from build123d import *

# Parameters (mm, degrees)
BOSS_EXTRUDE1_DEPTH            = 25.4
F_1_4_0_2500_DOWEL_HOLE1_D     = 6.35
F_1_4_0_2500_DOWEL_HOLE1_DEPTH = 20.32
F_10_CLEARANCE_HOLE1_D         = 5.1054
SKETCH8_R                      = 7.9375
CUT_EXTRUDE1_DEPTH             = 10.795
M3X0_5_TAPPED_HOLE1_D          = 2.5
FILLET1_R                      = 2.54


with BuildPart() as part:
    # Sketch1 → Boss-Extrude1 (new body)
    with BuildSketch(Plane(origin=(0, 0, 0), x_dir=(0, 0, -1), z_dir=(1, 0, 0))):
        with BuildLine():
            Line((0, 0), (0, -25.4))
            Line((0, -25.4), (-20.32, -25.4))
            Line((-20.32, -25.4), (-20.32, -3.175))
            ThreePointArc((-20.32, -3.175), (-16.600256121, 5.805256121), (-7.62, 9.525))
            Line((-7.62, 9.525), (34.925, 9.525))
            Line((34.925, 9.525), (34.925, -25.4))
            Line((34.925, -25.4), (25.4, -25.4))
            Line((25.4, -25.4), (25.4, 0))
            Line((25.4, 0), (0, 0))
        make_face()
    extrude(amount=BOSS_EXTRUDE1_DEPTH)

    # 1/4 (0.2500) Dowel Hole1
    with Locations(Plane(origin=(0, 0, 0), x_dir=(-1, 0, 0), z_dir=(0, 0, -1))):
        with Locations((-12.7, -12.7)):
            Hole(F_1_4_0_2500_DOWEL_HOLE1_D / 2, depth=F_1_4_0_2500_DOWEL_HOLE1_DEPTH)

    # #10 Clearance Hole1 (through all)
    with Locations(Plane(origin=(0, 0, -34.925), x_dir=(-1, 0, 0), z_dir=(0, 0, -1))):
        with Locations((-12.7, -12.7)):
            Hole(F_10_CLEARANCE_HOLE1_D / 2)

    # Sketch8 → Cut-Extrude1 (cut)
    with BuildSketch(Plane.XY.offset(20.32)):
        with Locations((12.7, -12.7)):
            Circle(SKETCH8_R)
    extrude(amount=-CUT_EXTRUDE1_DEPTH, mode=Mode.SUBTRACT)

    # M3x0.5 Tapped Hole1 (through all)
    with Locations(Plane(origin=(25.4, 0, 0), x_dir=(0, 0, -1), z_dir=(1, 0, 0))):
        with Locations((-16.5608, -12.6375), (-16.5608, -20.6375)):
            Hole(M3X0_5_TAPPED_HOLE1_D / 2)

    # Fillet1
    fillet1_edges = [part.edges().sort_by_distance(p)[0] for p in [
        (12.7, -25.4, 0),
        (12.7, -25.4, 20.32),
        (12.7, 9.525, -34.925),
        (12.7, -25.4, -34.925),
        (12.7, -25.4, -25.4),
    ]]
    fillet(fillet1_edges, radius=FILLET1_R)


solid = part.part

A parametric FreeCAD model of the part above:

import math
import FreeCAD as App
import Part
import Sketcher
from FreeCAD import Vector
Q = App.Units.Quantity


def edges_at(feature, points):
    """Names of the edges that pass closest to the given points."""
    edges = feature.Shape.Edges
    near = lambda p: min(range(len(edges)), key=lambda i: edges[i].distToShape(Part.Vertex(*p))[0])
    return sorted({f"Edge{near(p) + 1}" for p in points})

doc = App.newDocument("Part")
body = doc.addObject("PartDesign::Body", "Body")

# Sketch on YZ plane
sketch1 = body.newObject("Sketcher::SketchObject", "Sketch")
sketch1.AttachmentSupport = (doc.getObject("YZ_Plane"), [""])
sketch1.MapMode = "FlatFace"
sketch1.addGeometry([
    Part.LineSegment(Vector(-25, 0, 0), Vector(0, 0, 0)),  # 0
    Part.LineSegment(Vector(0, 0, 0), Vector(0, -25, 0)),  # 1
    Part.LineSegment(Vector(0, -25, 0), Vector(-25, -25, 0)),  # 2
    Part.LineSegment(Vector(-25, -25, 0), Vector(-25, -35, 0)),  # 3
    Part.LineSegment(Vector(-25, -35, 0), Vector(10, -35, 0)),  # 4
    Part.LineSegment(Vector(10, -35, 0), Vector(10, 8, 0)),  # 5
    Part.ArcOfCircle(Part.Circle(Vector(-3, 8, 0), Vector(0, 0, 1), 13), math.radians(0), math.radians(90)),  # 6
    Part.LineSegment(Vector(-3, 20, 0), Vector(-25, 20, 0)),  # 7
    Part.LineSegment(Vector(-25, 20, 0), Vector(-25, 0, 0)),  # 8
], False)
sketch1.addConstraint([
    Sketcher.Constraint("Coincident", 0, 2, 1, 1),
    Sketcher.Constraint("Coincident", 1, 2, 2, 1),
    Sketcher.Constraint("Coincident", 2, 2, 3, 1),
    Sketcher.Constraint("Coincident", 3, 2, 4, 1),
    Sketcher.Constraint("Coincident", 4, 2, 5, 1),
    Sketcher.Constraint("Tangent", 5, 2, 6, 1),
    Sketcher.Constraint("Tangent", 6, 2, 7, 1),
    Sketcher.Constraint("Coincident", 7, 2, 8, 1),
    Sketcher.Constraint("Coincident", 8, 2, 0, 1),
    Sketcher.Constraint("Horizontal", 0),
    Sketcher.Constraint("Vertical", 1),
    Sketcher.Constraint("Horizontal", 2),
    Sketcher.Constraint("Vertical", 3),
    Sketcher.Constraint("Horizontal", 4),
    Sketcher.Constraint("Vertical", 5),
    Sketcher.Constraint("Horizontal", 7),
    Sketcher.Constraint("Vertical", 8),
    Sketcher.Constraint("Coincident", 0, 2, -1, 1),
    Sketcher.Constraint("Vertical", 3, 2, 7, 2),
    Sketcher.Constraint("Equal", 2, 1),
    Sketcher.Constraint("Radius", 6, Q("0.5 in")),
    Sketcher.Constraint("DistanceX", 0, 1, 0, 2, Q("1 in")),
    Sketcher.Constraint("DistanceY", 8, 2, 8, 1, Q("0.8 in")),
    Sketcher.Constraint("DistanceX", 4, 1, 4, 2, Q("1.375 in")),
    Sketcher.Constraint("DistanceY", 3, 2, 3, 1, Q("0.375 in")),
])
pad1 = body.newObject("PartDesign::Pad", "Pad")
pad1.Profile = sketch1
pad1.Length = Q("1 in")

# Sketch on XY plane
sketch2 = body.newObject("Sketcher::SketchObject", "Sketch001")
sketch2.AttachmentSupport = (doc.getObject("XY_Plane"), [""])
sketch2.MapMode = "FlatFace"
sketch2.addGeometry(Part.Circle(Vector(12.7, -12.7, 0), Vector(0, 0, 1), 3.2), False)
sketch2.addConstraint([
    Sketcher.Constraint("Diameter", 0, Q("0.25 in")),
    Sketcher.Constraint("DistanceX", -1, 1, 0, 3, Q("0.5 in")),
    Sketcher.Constraint("DistanceY", 0, 3, -1, 1, Q("0.5 in")),
])
doc.recompute()
hole = body.newObject("PartDesign::Hole", "Hole")
hole.Profile = sketch2
hole.ThreadType = "None"
hole.Diameter = Q("0.25 in")
hole.DepthType = "Dimension"
hole.Depth = Q("0.8 in")
hole.DrillPoint = "Flat"
hole.Reversed = True

# Sketch on XY plane
sketch3 = body.newObject("Sketcher::SketchObject", "Sketch002")
sketch3.AttachmentSupport = (doc.getObject("XY_Plane"), [""])
sketch3.MapMode = "FlatFace"
sketch3.AttachmentOffset = App.Placement(Vector(0, 0, -1.375 * 25.4), App.Rotation())
sketch3.addGeometry(Part.Circle(Vector(12.7, -12.7, 0), Vector(0, 0, 1), 2.6), False)
sketch3.addConstraint([
    Sketcher.Constraint("Diameter", 0, Q("0.201 in")),
    Sketcher.Constraint("DistanceX", -1, 1, 0, 3, Q("0.5 in")),
    Sketcher.Constraint("DistanceY", 0, 3, -1, 1, Q("0.5 in")),
])
doc.recompute()
hole2 = body.newObject("PartDesign::Hole", "Hole001")
hole2.Profile = sketch3
hole2.ThreadType = "None"
hole2.Diameter = Q("0.201 in")
hole2.DepthType = "ThroughAll"
hole2.Reversed = True

# Sketch on XY plane
sketch4 = body.newObject("Sketcher::SketchObject", "Sketch003")
sketch4.AttachmentSupport = (doc.getObject("XY_Plane"), [""])
sketch4.MapMode = "FlatFace"
sketch4.AttachmentOffset = App.Placement(Vector(0, 0, 0.8 * 25.4), App.Rotation())
sketch4.addGeometry(Part.Circle(Vector(13, -13, 0), Vector(0, 0, 1), 8), False)
sketch4.addConstraint([
    Sketcher.Constraint("Diameter", 0, Q("0.625 in")),
    Sketcher.Constraint("DistanceX", -1, 1, 0, 3, Q("0.5 in")),
    Sketcher.Constraint("DistanceY", 0, 3, -1, 1, Q("0.5 in")),
])
pocket1 = body.newObject("PartDesign::Pocket", "Pocket")
pocket1.Profile = sketch4
pocket1.Length = Q("0.425 in")

# Sketch on YZ plane
sketch5 = body.newObject("Sketcher::SketchObject", "Sketch004")
sketch5.AttachmentSupport = (doc.getObject("YZ_Plane"), [""])
sketch5.MapMode = "FlatFace"
sketch5.AttachmentOffset = App.Placement(Vector(0, 0, 1 * 25.4), App.Rotation())
sketch5.addGeometry([
    Part.Circle(Vector(-12.6, 16.6, 0), Vector(0, 0, 1), 1.2),
    Part.Circle(Vector(-20.6, 16.6, 0), Vector(0, 0, 1), 1.2),
], False)
sketch5.addConstraint([
    Sketcher.Constraint("Equal", 0, 1),
    Sketcher.Constraint("Horizontal", 0, 3, 1, 3),
    Sketcher.Constraint("Diameter", 0, Q("2.5 mm")),
    Sketcher.Constraint("DistanceY", -1, 1, 0, 3, Q("0.652 in")),
    Sketcher.Constraint("DistanceX", 1, 3, -1, 1, Q("0.8125 in")),
    Sketcher.Constraint("DistanceX", 0, 3, -1, 1, Q("12.6375 mm")),
])
doc.recompute()
hole3 = body.newObject("PartDesign::Hole", "Hole002")
hole3.Profile = sketch5
hole3.ThreadType = "None"
hole3.Diameter = 2.5
hole3.DepthType = "ThroughAll"
doc.recompute()

fillet = body.newObject("PartDesign::Fillet", "Fillet")
fillet.Base = (hole3, edges_at(hole3, [
    (12.7, -25.4, 0),
    (12.7, -25.4, 20.32),
    (12.7, 9.525, -34.925),
    (12.7, -25.4, -34.925),
    (12.7, -25.4, -25.4),
]))
fillet.Radius = Q("0.1 in")

doc.recompute()
